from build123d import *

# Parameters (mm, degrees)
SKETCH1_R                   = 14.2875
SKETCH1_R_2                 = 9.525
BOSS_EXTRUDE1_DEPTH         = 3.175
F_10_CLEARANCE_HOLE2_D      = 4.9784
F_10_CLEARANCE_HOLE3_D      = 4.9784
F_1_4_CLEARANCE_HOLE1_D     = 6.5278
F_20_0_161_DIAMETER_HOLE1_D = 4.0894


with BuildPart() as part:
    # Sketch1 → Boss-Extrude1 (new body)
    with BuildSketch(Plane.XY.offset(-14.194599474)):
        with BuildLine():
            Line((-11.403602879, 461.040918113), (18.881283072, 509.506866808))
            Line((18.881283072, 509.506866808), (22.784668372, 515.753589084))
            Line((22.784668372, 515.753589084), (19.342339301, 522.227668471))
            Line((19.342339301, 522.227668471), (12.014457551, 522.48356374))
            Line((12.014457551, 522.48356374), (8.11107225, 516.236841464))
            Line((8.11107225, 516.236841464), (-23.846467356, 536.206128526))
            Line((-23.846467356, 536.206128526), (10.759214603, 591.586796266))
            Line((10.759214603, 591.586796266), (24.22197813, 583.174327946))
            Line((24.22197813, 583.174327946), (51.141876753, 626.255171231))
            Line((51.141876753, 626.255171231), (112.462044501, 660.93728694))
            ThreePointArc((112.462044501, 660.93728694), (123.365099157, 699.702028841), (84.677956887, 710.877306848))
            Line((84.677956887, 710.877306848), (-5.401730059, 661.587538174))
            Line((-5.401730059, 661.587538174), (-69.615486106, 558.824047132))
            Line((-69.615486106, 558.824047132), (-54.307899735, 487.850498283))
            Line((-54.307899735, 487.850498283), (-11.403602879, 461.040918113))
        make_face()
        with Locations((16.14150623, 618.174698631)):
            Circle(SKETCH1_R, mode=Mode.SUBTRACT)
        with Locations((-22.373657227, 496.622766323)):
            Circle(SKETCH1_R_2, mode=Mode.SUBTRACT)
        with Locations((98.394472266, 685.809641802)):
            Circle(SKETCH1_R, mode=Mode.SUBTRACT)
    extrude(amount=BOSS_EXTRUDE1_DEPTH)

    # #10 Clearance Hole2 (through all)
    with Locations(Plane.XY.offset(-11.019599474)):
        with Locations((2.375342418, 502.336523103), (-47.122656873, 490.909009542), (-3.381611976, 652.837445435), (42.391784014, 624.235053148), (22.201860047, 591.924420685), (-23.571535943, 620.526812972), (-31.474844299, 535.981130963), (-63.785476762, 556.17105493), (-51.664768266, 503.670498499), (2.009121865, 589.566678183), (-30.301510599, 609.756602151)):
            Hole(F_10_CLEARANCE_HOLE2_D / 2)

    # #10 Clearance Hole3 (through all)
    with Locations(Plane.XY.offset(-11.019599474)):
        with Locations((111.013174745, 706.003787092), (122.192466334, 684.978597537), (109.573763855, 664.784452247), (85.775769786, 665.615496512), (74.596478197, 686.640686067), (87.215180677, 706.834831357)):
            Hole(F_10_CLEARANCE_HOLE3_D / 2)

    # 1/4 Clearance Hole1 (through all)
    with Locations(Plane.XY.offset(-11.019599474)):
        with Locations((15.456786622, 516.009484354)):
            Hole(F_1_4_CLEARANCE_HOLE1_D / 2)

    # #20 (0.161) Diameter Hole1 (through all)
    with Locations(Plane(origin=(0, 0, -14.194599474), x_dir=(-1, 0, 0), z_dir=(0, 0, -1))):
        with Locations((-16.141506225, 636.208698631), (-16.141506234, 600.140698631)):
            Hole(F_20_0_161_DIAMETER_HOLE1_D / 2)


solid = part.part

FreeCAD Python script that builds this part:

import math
import FreeCAD as App
import Part
import Sketcher
from FreeCAD import Vector
Q = App.Units.Quantity

doc = App.newDocument("Part")
body = doc.addObject("PartDesign::Body", "Body")

# Sketch on XY plane
sketch1 = body.newObject("Sketcher::SketchObject", "Sketch")
sketch1.AttachmentSupport = (doc.getObject("XY_Plane"), [""])
sketch1.MapMode = "FlatFace"
sketch1.AttachmentOffset = App.Placement(Vector(0, 0, -14.194599), App.Rotation())
sketch1.addGeometry([
    Part.LineSegment(Vector(-11, 461, 0), Vector(19, 510, 0)),  # 0
    Part.LineSegment(Vector(19, 510, 0), Vector(23, 516, 0)),  # 1
    Part.LineSegment(Vector(23, 516, 0), Vector(19, 522, 0)),  # 2
    Part.LineSegment(Vector(19, 522, 0), Vector(12, 522, 0)),  # 3
    Part.LineSegment(Vector(12, 522, 0), Vector(8, 516, 0)),  # 4
    Part.LineSegment(Vector(8, 516, 0), Vector(-24, 536, 0)),  # 5
    Part.LineSegment(Vector(-24, 536, 0), Vector(11, 592, 0)),  # 6
    Part.LineSegment(Vector(11, 592, 0), Vector(24, 583, 0)),  # 7
    Part.LineSegment(Vector(24, 583, 0), Vector(51, 626, 0)),  # 8
    Part.LineSegment(Vector(51, 626, 0), Vector(112, 661, 0)),  # 9
    Part.ArcOfCircle(Part.Circle(Vector(98, 686, 0), Vector(0, 0, 1), 29), math.radians(-61), math.radians(119)),  # 10
    Part.LineSegment(Vector(85, 711, 0), Vector(-5, 662, 0)),  # 11
    Part.LineSegment(Vector(-5, 662, 0), Vector(-70, 559, 0)),  # 12
    Part.LineSegment(Vector(-70, 559, 0), Vector(-54, 488, 0)),  # 13
    Part.LineSegment(Vector(-54, 488, 0), Vector(-11, 461, 0)),  # 14
    Part.Circle(Vector(-22, 497, 0), Vector(0, 0, 1), 10),  # 15
    Part.Circle(Vector(16, 618, 0), Vector(0, 0, 1), 14),  # 16
    Part.Circle(Vector(98, 686, 0), Vector(0, 0, 1), 14),  # 17
], False)
sketch1.addConstraint([
    Sketcher.Constraint("Coincident", 0, 2, 1, 1),
    Sketcher.Constraint("Coincident", 1, 2, 2, 1),
    Sketcher.Constraint("Coincident", 2, 2, 3, 1),
    Sketcher.Constraint("Coincident", 3, 2, 4, 1),
    Sketcher.Constraint("Coincident", 4, 2, 5, 1),
    Sketcher.Constraint("Coincident", 5, 2, 6, 1),
    Sketcher.Constraint("Coincident", 6, 2, 7, 1),
    Sketcher.Constraint("Coincident", 7, 2, 8, 1),
    Sketcher.Constraint("Coincident", 8, 2, 9, 1),
    Sketcher.Constraint("Tangent", 9, 2, 10, 1),
    Sketcher.Constraint("Tangent", 10, 2, 11, 1),
    Sketcher.Constraint("Coincident", 11, 2, 12, 1),
    Sketcher.Constraint("Coincident", 12, 2, 13, 1),
    Sketcher.Constraint("Coincident", 13, 2, 14, 1),
    Sketcher.Constraint("Coincident", 14, 2, 0, 1),
    Sketcher.Constraint("Coincident", 17, 3, 10, 3),
    Sketcher.Constraint("Equal", 16, 17),
    Sketcher.Constraint("Parallel", 0, 1),
    Sketcher.Constraint("Parallel", 1, 4),
    Sketcher.Constraint("Perpendicular", 4, 5),
    Sketcher.Constraint("Perpendicular", 5, 6),
    Sketcher.Constraint("Perpendicular", 6, 7),
    Sketcher.Constraint("Perpendicular", 7, 8),
    Sketcher.Constraint("Parallel", 8, 12),
    Sketcher.Constraint("Perpendicular", 12, 14),
    Sketcher.Constraint("Equal", 2, 3),
    Sketcher.Constraint("Equal", 1, 4),
    Sketcher.Constraint("Diameter", 15, Q("0.75 in")),
    Sketcher.Constraint("Distance", 8, Q("2 in")),
    Sketcher.Constraint("Diameter", 16, Q("1.125 in")),
    Sketcher.Constraint("Angle", 0, Q("58 deg")),
    Sketcher.Constraint("Angle", 2, Q("118 deg")),
    Sketcher.Constraint("Angle", 3, Q("178 deg")),
    Sketcher.Constraint("Radius", 10, Q("1.125 in")),
    Sketcher.Constraint("Distance", 0, Q("2.25 in")),
    Sketcher.Constraint("Distance", 1, Q("0.29 in")),
    Sketcher.Constraint("Distance", 7, Q("0.625 in")),
    Sketcher.Constraint("DistanceY", 15, 3, 5, 2, Q("1.5584001 in")),
    Sketcher.Constraint("DistanceY", 3, 2, 7, 2, Q("2.3894002 in")),
    Sketcher.Constraint("DistanceY", -1, 1, 16, 3, Q("618.174699 mm")),
    Sketcher.Constraint("DistanceX", 13, 2, -1, 1, Q("54.3079 mm")),
    Sketcher.Constraint("DistanceY", -1, 1, 13, 2, Q("487.850498 mm")),
    Sketcher.Constraint("DistanceY", 15, 3, 0, 2, Q("12.8841 mm")),
    Sketcher.Constraint("DistanceY", 0, 2, 2, 2, Q("12.720802 mm")),
    Sketcher.Constraint("DistanceX", 12, 2, 6, 2, Q("80.374701 mm")),
    Sketcher.Constraint("Distance", 9, Q("70.448649 mm")),
    Sketcher.Constraint("Distance", 11, Q("102.68316 mm")),
    Sketcher.Constraint("Distance", 12, Q("121.176489 mm")),
    Sketcher.Constraint("Distance", 14, Q("50.59182 mm")),
    Sketcher.Constraint("DistanceY", -1, 1, 10, 3, Q("685.809642 mm")),
    Sketcher.Constraint("DistanceX", 15, 3, 10, 3, Q("120.768129 mm")),
    Sketcher.Constraint("DistanceX", 3, 2, 16, 3, Q("4.127049 mm")),
])
pad1 = body.newObject("PartDesign::Pad", "Pad")
pad1.Profile = sketch1
pad1.Length = Q("0.125 in")

# Sketch on XY plane
sketch2 = body.newObject("Sketcher::SketchObject", "Sketch001")
sketch2.AttachmentSupport = (doc.getObject("XY_Plane"), [""])
sketch2.MapMode = "FlatFace"
sketch2.AttachmentOffset = App.Placement(Vector(0, 0, -11.019599), App.Rotation())
sketch2.addGeometry([
    Part.Circle(Vector(2.4, 502.3, 0), Vector(0, 0, 1), 2.5),  # 0
    Part.Circle(Vector(-47.1, 490.9, 0), Vector(0, 0, 1), 2.5),  # 1
    Part.Circle(Vector(-3.4, 652.8, 0), Vector(0, 0, 1), 2.5),  # 2
    Part.Circle(Vector(42.4, 624.2, 0), Vector(0, 0, 1), 2.5),  # 3
    Part.Circle(Vector(22.2, 591.9, 0), Vector(0, 0, 1), 2.5),  # 4
    Part.Circle(Vector(-23.6, 620.5, 0), Vector(0, 0, 1), 2.5),  # 5
    Part.Circle(Vector(-31.5, 536, 0), Vector(0, 0, 1), 2.5),  # 6
    Part.Circle(Vector(-63.8, 556.2, 0), Vector(0, 0, 1), 2.5),  # 7
    Part.Circle(Vector(-51.7, 503.7, 0), Vector(0, 0, 1), 2.5),  # 8
    Part.Circle(Vector(2, 589.6, 0), Vector(0, 0, 1), 2.5),  # 9
    Part.Circle(Vector(-30.3, 609.8, 0), Vector(0, 0, 1), 2.5),  # 10
], False)
sketch2.addConstraint([
    Sketcher.Constraint("Equal", 0, 1),
    Sketcher.Constraint("Equal", 1, 2),
    Sketcher.Constraint("Equal", 2, 3),
    Sketcher.Constraint("Equal", 3, 4),
    Sketcher.Constraint("Equal", 4, 5),
    Sketcher.Constraint("Equal", 5, 6),
    Sketcher.Constraint("Equal", 6, 7),
    Sketcher.Constraint("Equal", 7, 8),
    Sketcher.Constraint("Equal", 8, 9),
    Sketcher.Constraint("Equal", 9, 10),
    Sketcher.Constraint("Diameter", 0, Q("0.196 in")),
    Sketcher.Constraint("DistanceY", -1, 1, 8, 3, Q("503.670498 mm")),
    Sketcher.Constraint("DistanceX", 1, 3, 0, 3, Q("49.497999 mm")),
    Sketcher.Constraint("DistanceX", 10, 3, 2, 3, Q("26.919899 mm")),
    Sketcher.Constraint("DistanceY", -1, 1, 1, 3, Q("490.90901 mm")),
    Sketcher.Constraint("DistanceX", 2, 3, -1, 1, Q("3.381612 mm")),
    Sketcher.Constraint("DistanceX", -1, 1, 4, 3, Q("22.20186 mm")),
    Sketcher.Constraint("DistanceY", -1, 1, 4, 3, Q("591.924421 mm")),
    Sketcher.Constraint("DistanceY", -1, 1, 6, 3, Q("535.981131 mm")),
    Sketcher.Constraint("DistanceX", 8, 3, -1, 1, Q("51.664768 mm")),
    Sketcher.Constraint("DistanceX", -1, 1, 9, 3, Q("2.009122 mm")),
    Sketcher.Constraint("DistanceY", -1, 1, 9, 3, Q("589.566678 mm")),
    Sketcher.Constraint("DistanceX", 0, 3, 3, 3, Q("40.016442 mm")),
    Sketcher.Constraint("DistanceY", 0, 3, 3, 3, Q("121.89853 mm")),
    Sketcher.Constraint("DistanceX", 5, 3, 3, 3, Q("65.96332 mm")),
    Sketcher.Constraint("DistanceY", 5, 3, 3, 3, Q("3.70824 mm")),
    Sketcher.Constraint("DistanceX", 6, 3, 5, 3, Q("7.903308 mm")),
    Sketcher.Constraint("DistanceX", 7, 3, 1, 3, Q("16.66282 mm")),
    Sketcher.Constraint("DistanceY", 7, 3, 5, 3, Q("64.355758 mm")),
    Sketcher.Constraint("DistanceX", 8, 3, 1, 3, Q("4.542111 mm")),
    Sketcher.Constraint("DistanceY", 10, 3, 5, 3, Q("10.770211 mm")),
    Sketcher.Constraint("DistanceY", 4, 3, 10, 3, Q("17.832181 mm")),
    Sketcher.Constraint("DistanceY", -1, 1, 2, 3, Q("652.837445 mm")),
])
doc.recompute()
hole = body.newObject("PartDesign::Hole", "Hole")
hole.Profile = sketch2
hole.ThreadType = "None"
hole.Diameter = Q("0.196 in")
hole.DepthType = "ThroughAll"

# Sketch on XY plane
sketch3 = body.newObject("Sketcher::SketchObject", "Sketch002")
sketch3.AttachmentSupport = (doc.getObject("XY_Plane"), [""])
sketch3.MapMode = "FlatFace"
sketch3.AttachmentOffset = App.Placement(Vector(0, 0, -11.019599), App.Rotation())
sketch3.addGeometry([
    Part.Circle(Vector(111, 706, 0), Vector(0, 0, 1), 2.5),  # 0
    Part.Circle(Vector(122.2, 685, 0), Vector(0, 0, 1), 2.5),  # 1
    Part.Circle(Vector(109.6, 664.8, 0), Vector(0, 0, 1), 2.5),  # 2
    Part.Circle(Vector(85.8, 665.6, 0), Vector(0, 0, 1), 2.5),  # 3
    Part.Circle(Vector(74.6, 686.6, 0), Vector(0, 0, 1), 2.5),  # 4
    Part.Circle(Vector(87.2, 706.8, 0), Vector(0, 0, 1), 2.5),  # 5
], False)
sketch3.addConstraint([
    Sketcher.Constraint("Equal", 0, 1),
    Sketcher.Constraint("Equal", 1, 2),
    Sketcher.Constraint("Equal", 2, 3),
    Sketcher.Constraint("Equal", 3, 4),
    Sketcher.Constraint("Equal", 4, 5),
    Sketcher.Constraint("Diameter", 0, Q("0.196 in")),
    Sketcher.Constraint("DistanceY", 3, 3, 1, 3, Q("19.363101 mm")),
    Sketcher.Constraint("DistanceY", 4, 3, 0, 3, Q("19.363101 mm")),
    Sketcher.Constraint("DistanceX", -1, 1, 3, 3, Q("85.77577 mm")),
    Sketcher.Constraint("DistanceX", -1, 1, 4, 3, Q("74.596478 mm")),
    Sketcher.Constraint("DistanceX", -1, 1, 5, 3, Q("87.215181 mm")),
    Sketcher.Constraint("DistanceY", -1, 1, 5, 3, Q("706.834831 mm")),
    Sketcher.Constraint("DistanceX", 0, 3, 1, 3, Q("11.179292 mm")),
    Sketcher.Constraint("DistanceY", 1, 3, 0, 3, Q("21.02519 mm")),
    Sketcher.Constraint("DistanceX", 2, 3, 0, 3, Q("1.439411 mm")),
    Sketcher.Constraint("DistanceX", 4, 3, 1, 3, Q("47.595988 mm")),
    Sketcher.Constraint("DistanceY", 2, 3, 5, 3, Q("42.050379 mm")),
    Sketcher.Constraint("DistanceY", -1, 1, 0, 3, Q("706.003787 mm")),
])
doc.recompute()
hole2 = body.newObject("PartDesign::Hole", "Hole001")
hole2.Profile = sketch3
hole2.ThreadType = "None"
hole2.Diameter = Q("0.196 in")
hole2.DepthType = "ThroughAll"

# Sketch on XY plane
sketch4 = body.newObject("Sketcher::SketchObject", "Sketch003")
sketch4.AttachmentSupport = (doc.getObject("XY_Plane"), [""])
sketch4.MapMode = "FlatFace"
sketch4.AttachmentOffset = App.Placement(Vector(0, 0, -11.019599), App.Rotation())
sketch4.addGeometry(Part.Circle(Vector(15.5, 516, 0), Vector(0, 0, 1), 3.3), False)
sketch4.addConstraint([
    Sketcher.Constraint("Diameter", 0, Q("0.257 in")),
    Sketcher.Constraint("DistanceX", -1, 1, 0, 3, Q("15.456787 mm")),
    Sketcher.Constraint("DistanceY", -1, 1, 0, 3, Q("516.009484 mm")),
])
doc.recompute()
hole3 = body.newObject("PartDesign::Hole", "Hole002")
hole3.Profile = sketch4
hole3.ThreadType = "None"
hole3.Diameter = Q("0.257 in")
hole3.DepthType = "ThroughAll"

# Sketch on XY plane
sketch5 = body.newObject("Sketcher::SketchObject", "Sketch004")
sketch5.AttachmentSupport = (doc.getObject("XY_Plane"), [""])
sketch5.MapMode = "FlatFace"
sketch5.AttachmentOffset = App.Placement(Vector(0, 0, -14.194599), App.Rotation())
sketch5.addGeometry([
    Part.Circle(Vector(16.1, 636.2, 0), Vector(0, 0, 1), 2),
    Part.Circle(Vector(16.1, 600.1, 0), Vector(0, 0, 1), 2),
], False)
sketch5.addConstraint([
    Sketcher.Constraint("Equal", 0, 1),
    Sketcher.Constraint("Vertical", 0, 3, 1, 3),
    Sketcher.Constraint("Diameter", 0, Q("0.161 in")),
    Sketcher.Constraint("DistanceY", 1, 3, 0, 3, Q("1.42 in")),
    Sketcher.Constraint("DistanceY", -1, 1, 0, 3, Q("636.208699 mm")),
    Sketcher.Constraint("DistanceX", -1, 1, 0, 3, Q("16.141506 mm")),
])
doc.recompute()
hole4 = body.newObject("PartDesign::Hole", "Hole003")
hole4.Profile = sketch5
hole4.ThreadType = "None"
hole4.Diameter = Q("0.161 in")
hole4.DepthType = "ThroughAll"
hole4.Reversed = True

doc.recompute()
